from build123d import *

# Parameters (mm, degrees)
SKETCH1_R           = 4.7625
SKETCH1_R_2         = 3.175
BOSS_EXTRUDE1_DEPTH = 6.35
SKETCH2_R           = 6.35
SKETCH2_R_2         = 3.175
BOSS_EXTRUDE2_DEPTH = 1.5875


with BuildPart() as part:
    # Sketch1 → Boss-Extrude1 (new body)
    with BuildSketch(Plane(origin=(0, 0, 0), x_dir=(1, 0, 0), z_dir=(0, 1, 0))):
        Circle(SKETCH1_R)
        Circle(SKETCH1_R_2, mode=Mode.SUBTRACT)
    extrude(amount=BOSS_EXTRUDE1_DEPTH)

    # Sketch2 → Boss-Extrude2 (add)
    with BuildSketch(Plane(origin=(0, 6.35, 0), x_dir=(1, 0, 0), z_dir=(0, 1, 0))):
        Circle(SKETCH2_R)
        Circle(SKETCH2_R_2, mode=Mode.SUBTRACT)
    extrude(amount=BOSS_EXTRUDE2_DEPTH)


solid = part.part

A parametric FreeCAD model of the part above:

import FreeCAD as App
import Part
import Sketcher
from FreeCAD import Vector
Q = App.Units.Quantity

doc = App.newDocument("Part")
body = doc.addObject("PartDesign::Body", "Body")

# Sketch on XZ plane
sketch1 = body.newObject("Sketcher::SketchObject", "Sketch")
sketch1.AttachmentSupport = (doc.getObject("XZ_Plane"), [""])
sketch1.MapMode = "FlatFace"
sketch1.addGeometry([
    Part.Circle(Vector(0, 0, 0), Vector(0, 0, 1), 4.8),
    Part.Circle(Vector(0, 0, 0), Vector(0, 0, 1), 3.2),
], False)
sketch1.addConstraint([
    Sketcher.Constraint("Coincident", 0, 3, -1, 1),
    Sketcher.Constraint("Coincident", 1, 3, -1, 1),
    Sketcher.Constraint("Diameter", 1, Q("0.25 in")),
    Sketcher.Constraint("Diameter", 0, Q("0.375 in")),
])
pad1 = body.newObject("PartDesign::Pad", "Pad")
pad1.Profile = sketch1
pad1.Length = Q("0.25 in")
pad1.Reversed = True

# Sketch on XZ plane
sketch2 = body.newObject("Sketcher::SketchObject", "Sketch001")
sketch2.AttachmentSupport = (doc.getObject("XZ_Plane"), [""])
sketch2.MapMode = "FlatFace"
sketch2.AttachmentOffset = App.Placement(Vector(0, 0, -0.25 * 25.4), App.Rotation())
sketch2.addGeometry([
    Part.Circle(Vector(0, 0, 0), Vector(0, 0, 1), 6.3),
    Part.Circle(Vector(0, 0, 0), Vector(0, 0, 1), 3.2),
], False)
sketch2.addConstraint([
    Sketcher.Constraint("Coincident", 0, 3, -1, 1),
    Sketcher.Constraint("Coincident", 1, 3, -1, 1),
    Sketcher.Constraint("Diameter", 0, Q("0.5 in")),
    Sketcher.Constraint("Diameter", 1, Q("0.25 in")),
])
pad2 = body.newObject("PartDesign::Pad", "Pad001")
pad2.Profile = sketch2
pad2.Length = Q("0.0625 in")
pad2.Reversed = True

doc.recompute()
